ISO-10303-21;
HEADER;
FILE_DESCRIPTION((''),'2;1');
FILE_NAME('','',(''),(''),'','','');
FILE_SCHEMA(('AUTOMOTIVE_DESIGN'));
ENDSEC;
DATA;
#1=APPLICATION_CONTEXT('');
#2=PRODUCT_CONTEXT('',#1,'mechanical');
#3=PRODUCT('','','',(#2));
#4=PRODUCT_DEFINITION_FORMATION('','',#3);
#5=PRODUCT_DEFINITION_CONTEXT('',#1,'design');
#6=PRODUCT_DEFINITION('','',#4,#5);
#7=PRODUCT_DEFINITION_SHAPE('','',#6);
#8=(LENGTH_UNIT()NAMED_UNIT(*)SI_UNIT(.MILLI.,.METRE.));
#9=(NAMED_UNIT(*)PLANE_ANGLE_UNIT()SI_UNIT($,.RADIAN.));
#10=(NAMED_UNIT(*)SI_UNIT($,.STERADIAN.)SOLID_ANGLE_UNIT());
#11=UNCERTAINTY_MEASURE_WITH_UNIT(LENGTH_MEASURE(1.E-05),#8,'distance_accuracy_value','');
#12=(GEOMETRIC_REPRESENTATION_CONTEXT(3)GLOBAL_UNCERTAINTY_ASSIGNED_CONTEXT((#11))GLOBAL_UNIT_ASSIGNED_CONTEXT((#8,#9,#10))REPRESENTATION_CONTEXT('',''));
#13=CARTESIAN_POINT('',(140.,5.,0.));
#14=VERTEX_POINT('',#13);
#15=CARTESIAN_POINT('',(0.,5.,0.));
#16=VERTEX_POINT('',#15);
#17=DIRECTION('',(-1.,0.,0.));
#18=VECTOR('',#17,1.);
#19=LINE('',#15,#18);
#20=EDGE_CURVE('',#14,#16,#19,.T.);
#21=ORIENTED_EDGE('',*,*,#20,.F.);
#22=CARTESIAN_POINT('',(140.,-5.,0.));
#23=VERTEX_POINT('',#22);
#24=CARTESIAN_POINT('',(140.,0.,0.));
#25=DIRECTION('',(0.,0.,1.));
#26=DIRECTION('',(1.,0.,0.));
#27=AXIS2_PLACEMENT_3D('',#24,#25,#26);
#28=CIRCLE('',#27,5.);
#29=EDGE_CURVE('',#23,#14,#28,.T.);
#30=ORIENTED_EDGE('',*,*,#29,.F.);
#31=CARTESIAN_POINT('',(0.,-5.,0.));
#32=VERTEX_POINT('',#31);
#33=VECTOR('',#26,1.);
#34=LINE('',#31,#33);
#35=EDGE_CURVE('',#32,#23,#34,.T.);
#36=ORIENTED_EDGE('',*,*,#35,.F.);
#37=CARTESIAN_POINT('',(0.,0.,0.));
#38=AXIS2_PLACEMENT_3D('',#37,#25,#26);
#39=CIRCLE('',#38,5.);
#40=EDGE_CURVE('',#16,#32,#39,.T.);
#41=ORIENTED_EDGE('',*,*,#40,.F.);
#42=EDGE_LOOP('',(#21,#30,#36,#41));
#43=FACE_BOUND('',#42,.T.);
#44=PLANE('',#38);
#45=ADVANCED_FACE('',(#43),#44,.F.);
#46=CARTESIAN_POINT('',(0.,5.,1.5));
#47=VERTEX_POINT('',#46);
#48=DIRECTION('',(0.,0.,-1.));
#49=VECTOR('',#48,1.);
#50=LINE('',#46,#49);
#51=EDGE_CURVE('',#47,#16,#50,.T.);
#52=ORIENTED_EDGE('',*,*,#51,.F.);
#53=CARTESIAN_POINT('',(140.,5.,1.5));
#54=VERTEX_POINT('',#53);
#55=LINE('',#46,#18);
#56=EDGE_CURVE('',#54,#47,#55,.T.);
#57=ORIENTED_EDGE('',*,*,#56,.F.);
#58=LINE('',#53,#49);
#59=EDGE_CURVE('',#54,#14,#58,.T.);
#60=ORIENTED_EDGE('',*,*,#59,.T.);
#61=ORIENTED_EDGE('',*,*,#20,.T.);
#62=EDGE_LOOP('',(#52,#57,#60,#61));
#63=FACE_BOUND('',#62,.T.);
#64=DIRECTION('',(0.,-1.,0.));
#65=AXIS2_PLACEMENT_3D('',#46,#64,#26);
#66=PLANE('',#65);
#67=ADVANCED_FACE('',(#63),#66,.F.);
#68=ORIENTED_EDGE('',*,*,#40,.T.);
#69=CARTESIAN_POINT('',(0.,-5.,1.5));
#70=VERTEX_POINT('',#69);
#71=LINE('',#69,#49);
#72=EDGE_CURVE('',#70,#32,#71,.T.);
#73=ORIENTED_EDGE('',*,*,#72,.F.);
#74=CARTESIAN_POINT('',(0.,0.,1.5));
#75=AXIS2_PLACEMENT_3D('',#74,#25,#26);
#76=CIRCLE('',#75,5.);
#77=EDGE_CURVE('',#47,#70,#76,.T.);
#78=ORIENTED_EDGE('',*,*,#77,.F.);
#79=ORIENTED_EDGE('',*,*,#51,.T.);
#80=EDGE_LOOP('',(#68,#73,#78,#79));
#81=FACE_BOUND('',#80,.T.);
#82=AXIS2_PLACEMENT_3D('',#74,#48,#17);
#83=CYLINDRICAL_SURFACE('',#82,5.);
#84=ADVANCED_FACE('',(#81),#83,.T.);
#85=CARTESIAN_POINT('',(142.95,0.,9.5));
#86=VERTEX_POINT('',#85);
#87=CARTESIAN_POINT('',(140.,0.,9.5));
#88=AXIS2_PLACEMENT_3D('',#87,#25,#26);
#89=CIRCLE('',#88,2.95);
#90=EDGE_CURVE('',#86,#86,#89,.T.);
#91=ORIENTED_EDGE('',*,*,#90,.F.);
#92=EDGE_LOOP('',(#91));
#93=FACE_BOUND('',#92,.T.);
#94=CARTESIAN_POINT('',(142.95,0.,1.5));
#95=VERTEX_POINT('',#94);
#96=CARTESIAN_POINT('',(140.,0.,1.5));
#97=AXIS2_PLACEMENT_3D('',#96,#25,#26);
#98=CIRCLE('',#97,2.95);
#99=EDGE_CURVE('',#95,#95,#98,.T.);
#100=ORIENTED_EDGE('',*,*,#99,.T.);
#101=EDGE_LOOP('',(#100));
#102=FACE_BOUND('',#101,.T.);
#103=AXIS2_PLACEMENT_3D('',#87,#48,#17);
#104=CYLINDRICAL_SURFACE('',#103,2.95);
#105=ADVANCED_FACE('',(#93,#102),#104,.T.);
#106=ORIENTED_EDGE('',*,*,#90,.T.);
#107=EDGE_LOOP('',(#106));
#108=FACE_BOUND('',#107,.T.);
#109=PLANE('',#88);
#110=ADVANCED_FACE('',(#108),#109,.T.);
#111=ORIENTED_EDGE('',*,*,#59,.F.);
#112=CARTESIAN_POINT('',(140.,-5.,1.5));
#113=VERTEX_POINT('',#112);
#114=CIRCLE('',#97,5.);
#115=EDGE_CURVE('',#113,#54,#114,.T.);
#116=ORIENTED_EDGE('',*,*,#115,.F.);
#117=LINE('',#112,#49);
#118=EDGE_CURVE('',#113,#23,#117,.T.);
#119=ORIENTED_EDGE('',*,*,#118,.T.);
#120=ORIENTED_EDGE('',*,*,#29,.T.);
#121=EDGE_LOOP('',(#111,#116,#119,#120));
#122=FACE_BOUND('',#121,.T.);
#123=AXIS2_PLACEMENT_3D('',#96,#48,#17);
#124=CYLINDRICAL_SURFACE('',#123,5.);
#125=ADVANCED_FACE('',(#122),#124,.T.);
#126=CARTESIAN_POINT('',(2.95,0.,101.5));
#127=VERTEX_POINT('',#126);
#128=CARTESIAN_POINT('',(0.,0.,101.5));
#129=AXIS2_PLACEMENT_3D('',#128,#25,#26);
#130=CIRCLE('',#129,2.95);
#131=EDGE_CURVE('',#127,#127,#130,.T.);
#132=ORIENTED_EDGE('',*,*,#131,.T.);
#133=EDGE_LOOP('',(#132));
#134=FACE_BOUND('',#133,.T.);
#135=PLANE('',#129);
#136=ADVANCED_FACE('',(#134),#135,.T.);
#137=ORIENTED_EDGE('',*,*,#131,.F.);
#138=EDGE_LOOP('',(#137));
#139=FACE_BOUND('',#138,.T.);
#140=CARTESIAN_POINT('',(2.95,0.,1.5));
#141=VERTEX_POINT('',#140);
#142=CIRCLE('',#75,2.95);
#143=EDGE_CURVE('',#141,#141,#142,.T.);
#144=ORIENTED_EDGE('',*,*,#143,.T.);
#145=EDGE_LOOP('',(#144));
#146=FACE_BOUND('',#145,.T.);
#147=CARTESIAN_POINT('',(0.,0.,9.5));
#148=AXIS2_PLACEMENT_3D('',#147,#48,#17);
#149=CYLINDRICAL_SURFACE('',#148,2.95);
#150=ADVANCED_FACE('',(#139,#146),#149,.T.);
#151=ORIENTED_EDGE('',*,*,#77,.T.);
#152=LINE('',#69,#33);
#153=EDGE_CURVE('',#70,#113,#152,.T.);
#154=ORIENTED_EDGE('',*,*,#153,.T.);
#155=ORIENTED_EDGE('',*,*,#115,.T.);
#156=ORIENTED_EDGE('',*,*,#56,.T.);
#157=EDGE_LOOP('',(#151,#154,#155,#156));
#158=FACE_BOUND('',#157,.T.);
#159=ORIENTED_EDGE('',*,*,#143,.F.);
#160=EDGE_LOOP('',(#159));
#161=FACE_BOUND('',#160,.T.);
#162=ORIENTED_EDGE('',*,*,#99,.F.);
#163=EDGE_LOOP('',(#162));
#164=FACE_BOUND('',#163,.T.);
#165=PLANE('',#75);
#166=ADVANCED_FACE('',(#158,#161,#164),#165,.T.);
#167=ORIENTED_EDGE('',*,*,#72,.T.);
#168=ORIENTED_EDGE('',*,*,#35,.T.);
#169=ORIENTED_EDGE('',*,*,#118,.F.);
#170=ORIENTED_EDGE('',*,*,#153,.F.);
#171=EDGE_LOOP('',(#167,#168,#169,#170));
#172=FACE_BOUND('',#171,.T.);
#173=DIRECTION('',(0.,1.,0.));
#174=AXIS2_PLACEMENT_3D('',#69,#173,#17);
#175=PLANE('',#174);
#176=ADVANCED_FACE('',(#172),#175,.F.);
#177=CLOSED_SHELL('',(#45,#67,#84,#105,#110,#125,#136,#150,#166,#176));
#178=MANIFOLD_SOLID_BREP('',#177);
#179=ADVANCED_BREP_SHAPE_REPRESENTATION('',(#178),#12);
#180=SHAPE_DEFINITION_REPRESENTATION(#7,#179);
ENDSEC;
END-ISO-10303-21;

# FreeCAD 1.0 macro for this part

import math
import FreeCAD as App
import Part
import Sketcher

doc = App.newDocument("Part")
params = doc.addObject("Spreadsheet::Sheet", "Params")
for row, (alias, value) in enumerate([
    ("sketch1_radius", "5 mm"),
    ("sketch1_width", "140 mm"),
    ("pad1_length", "1.5 mm"),
    ("sketch2_diameter", "5.9 mm"),
    ("pad2_length", "8 mm"),
    ("sketch3_diameter", "5.9 mm"),
    ("pad3_length", "92 mm"),
], start=1):
    params.set(f"A{row}", alias)
    params.set(f"B{row}", "=" + value)
    params.setAlias(f"B{row}", alias)

body = doc.addObject("PartDesign::Body", "Body")

# Sketch on XY plane
sketch1 = doc.addObject("Sketcher::SketchObject", "Sketch")
body.addObject(sketch1)
sketch1.AttachmentSupport = (doc.XY_Plane, [""])
sketch1.MapMode = "FlatFace"
sketch1.addGeometry([
    Part.LineSegment(App.Vector(140, 5, 0), App.Vector(0, 5, 0)),
    Part.ArcOfCircle(Part.Circle(App.Vector(0, 0, 0), App.Vector(0, 0, 1), 5), math.radians(90), math.radians(270)),
    Part.LineSegment(App.Vector(0, -5, 0), App.Vector(140, -5, 0)),
    Part.ArcOfCircle(Part.Circle(App.Vector(140, 0, 0), App.Vector(0, 0, 1), 5), math.radians(-90), math.radians(90)),
], False)
sketch1.addConstraint([
    Sketcher.Constraint("Tangent", 0, 2, 1, 1),
    Sketcher.Constraint("Tangent", 1, 2, 2, 1),
    Sketcher.Constraint("Tangent", 2, 2, 3, 1),
    Sketcher.Constraint("Tangent", 3, 2, 0, 1),
    Sketcher.Constraint("Horizontal", 0),
    Sketcher.Constraint("Horizontal", 2),
    Sketcher.Constraint("Coincident", 1, 3, -1, 1),
    Sketcher.Constraint("Radius", 1, 5.0),
    Sketcher.Constraint("DistanceX", 0, 2, 0, 1, 140.0),
])
sketch1.setExpression("Constraints[7]", "Params.sketch1_radius")
sketch1.setExpression("Constraints[8]", "Params.sketch1_width")
pad1 = doc.addObject("PartDesign::Pad", "Pad")
body.addObject(pad1)
pad1.Profile = sketch1
pad1.setExpression("Length", "Params.pad1_length")

# Sketch on XY plane
sketch2 = doc.addObject("Sketcher::SketchObject", "Sketch001")
body.addObject(sketch2)
sketch2.AttachmentSupport = (doc.XY_Plane, [""])
sketch2.MapMode = "FlatFace"
sketch2.AttachmentOffset = App.Placement(App.Vector(0, 0, 1.5), App.Rotation())
sketch2.addGeometry([
    Part.Circle(App.Vector(0, 0, 0), App.Vector(0, 0, 1), 3),
    Part.Circle(App.Vector(140, 0, 0), App.Vector(0, 0, 1), 3),
], False)
sketch2.addConstraint([
    Sketcher.Constraint("Coincident", 0, 3, -1, 1),
    Sketcher.Constraint("Equal", 0, 1),
    Sketcher.Constraint("PointOnObject", 1, 3, -1),
    Sketcher.Constraint("Diameter", 0, 5.9),
    Sketcher.Constraint("DistanceX", -1, 1, 1, 3, 140.0),
])
sketch2.setExpression("Constraints[3]", "Params.sketch2_diameter")
pad2 = doc.addObject("PartDesign::Pad", "Pad001")
body.addObject(pad2)
pad2.Profile = sketch2
pad2.setExpression("Length", "Params.pad2_length")

# Sketch on XY plane
sketch3 = doc.addObject("Sketcher::SketchObject", "Sketch002")
body.addObject(sketch3)
sketch3.AttachmentSupport = (doc.XY_Plane, [""])
sketch3.MapMode = "FlatFace"
sketch3.AttachmentOffset = App.Placement(App.Vector(0, 0, 9.5), App.Rotation())
sketch3.addGeometry(Part.Circle(App.Vector(0, 0, 0), App.Vector(0, 0, 1), 3), False)
sketch3.addConstraint([
    Sketcher.Constraint("Coincident", 0, 3, -1, 1),
    Sketcher.Constraint("Diameter", 0, 5.9),
])
sketch3.setExpression("Constraints[1]", "Params.sketch3_diameter")
pad3 = doc.addObject("PartDesign::Pad", "Pad002")
body.addObject(pad3)
pad3.Profile = sketch3
pad3.setExpression("Length", "Params.pad3_length")

doc.recompute()
